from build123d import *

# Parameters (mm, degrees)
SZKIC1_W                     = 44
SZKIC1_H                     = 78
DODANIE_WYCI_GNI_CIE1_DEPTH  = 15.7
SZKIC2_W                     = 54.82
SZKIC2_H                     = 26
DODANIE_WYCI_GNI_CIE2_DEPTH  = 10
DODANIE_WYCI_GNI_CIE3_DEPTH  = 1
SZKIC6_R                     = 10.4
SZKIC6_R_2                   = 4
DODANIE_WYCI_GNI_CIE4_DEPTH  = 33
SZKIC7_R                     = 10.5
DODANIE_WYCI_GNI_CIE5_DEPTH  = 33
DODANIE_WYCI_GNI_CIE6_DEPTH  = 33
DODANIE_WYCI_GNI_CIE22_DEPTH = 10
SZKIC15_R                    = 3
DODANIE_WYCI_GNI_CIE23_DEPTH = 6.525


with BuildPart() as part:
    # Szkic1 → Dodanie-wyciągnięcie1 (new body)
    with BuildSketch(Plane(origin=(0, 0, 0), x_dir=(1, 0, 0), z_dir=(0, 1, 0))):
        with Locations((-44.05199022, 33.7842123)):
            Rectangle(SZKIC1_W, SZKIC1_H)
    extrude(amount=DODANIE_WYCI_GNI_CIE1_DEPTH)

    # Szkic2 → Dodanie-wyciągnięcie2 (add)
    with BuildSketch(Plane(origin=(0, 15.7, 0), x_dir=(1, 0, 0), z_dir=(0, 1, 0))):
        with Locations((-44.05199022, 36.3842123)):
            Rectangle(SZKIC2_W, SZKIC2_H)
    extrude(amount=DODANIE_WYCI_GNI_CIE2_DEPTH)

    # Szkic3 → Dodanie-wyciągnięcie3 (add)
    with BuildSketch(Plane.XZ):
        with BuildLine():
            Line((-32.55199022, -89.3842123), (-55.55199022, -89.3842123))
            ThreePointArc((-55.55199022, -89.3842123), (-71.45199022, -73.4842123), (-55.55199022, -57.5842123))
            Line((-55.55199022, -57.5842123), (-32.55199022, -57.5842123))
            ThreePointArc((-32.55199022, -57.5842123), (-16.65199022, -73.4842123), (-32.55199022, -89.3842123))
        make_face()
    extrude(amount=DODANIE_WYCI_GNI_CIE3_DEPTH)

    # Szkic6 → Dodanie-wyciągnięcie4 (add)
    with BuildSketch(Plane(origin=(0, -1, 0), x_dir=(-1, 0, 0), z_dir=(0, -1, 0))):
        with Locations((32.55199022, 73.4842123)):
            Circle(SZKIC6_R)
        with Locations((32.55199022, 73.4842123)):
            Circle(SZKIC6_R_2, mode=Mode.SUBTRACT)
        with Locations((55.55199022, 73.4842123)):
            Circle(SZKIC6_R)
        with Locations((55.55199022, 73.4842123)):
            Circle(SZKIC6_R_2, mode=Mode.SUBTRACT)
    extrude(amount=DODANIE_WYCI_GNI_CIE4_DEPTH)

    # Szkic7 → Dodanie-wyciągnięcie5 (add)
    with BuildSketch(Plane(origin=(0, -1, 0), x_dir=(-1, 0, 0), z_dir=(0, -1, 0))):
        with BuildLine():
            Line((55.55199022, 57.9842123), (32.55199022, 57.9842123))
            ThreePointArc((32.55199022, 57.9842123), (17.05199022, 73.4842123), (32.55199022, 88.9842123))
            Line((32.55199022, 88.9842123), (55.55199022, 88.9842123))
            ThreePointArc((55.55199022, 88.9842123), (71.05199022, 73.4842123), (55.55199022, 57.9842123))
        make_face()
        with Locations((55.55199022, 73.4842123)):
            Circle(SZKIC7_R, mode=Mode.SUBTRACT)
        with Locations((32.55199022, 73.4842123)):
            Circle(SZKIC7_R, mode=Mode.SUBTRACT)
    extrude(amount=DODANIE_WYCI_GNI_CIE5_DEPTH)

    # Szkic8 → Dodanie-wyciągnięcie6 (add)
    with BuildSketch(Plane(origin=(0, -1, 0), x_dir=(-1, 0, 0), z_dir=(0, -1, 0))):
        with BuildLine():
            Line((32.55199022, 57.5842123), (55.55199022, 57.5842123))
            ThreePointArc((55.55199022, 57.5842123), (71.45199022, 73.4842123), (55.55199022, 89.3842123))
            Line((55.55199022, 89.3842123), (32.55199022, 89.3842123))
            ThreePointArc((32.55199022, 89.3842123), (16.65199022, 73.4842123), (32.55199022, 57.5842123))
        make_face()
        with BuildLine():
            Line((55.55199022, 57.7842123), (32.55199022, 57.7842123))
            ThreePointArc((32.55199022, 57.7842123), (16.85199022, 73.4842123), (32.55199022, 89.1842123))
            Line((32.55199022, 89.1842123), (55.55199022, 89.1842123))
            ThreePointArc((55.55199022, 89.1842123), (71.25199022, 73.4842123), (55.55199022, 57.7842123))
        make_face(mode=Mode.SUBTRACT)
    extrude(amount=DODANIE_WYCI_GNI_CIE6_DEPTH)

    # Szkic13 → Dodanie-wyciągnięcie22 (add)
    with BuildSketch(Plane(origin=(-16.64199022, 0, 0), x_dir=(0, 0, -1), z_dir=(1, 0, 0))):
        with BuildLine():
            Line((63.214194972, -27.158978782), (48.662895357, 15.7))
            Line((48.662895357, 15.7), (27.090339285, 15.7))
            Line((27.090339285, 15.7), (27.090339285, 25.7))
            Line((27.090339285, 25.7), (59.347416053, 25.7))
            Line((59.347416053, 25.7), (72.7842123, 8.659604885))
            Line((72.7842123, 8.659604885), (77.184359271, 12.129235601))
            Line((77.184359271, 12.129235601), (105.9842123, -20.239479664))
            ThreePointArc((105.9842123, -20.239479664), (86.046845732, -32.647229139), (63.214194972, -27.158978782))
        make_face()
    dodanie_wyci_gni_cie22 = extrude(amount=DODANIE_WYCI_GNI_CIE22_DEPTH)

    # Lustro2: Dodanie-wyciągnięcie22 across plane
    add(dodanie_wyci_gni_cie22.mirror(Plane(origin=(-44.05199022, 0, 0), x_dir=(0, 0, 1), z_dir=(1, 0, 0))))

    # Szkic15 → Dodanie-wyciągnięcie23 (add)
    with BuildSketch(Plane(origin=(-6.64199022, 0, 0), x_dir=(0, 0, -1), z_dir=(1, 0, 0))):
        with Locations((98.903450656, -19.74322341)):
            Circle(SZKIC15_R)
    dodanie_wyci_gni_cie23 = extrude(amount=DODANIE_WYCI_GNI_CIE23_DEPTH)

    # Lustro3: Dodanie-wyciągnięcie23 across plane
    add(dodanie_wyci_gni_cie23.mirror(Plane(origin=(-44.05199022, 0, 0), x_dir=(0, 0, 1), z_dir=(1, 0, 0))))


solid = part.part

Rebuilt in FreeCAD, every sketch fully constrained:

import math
import FreeCAD as App
import Part
import Sketcher

V = App.Vector
Q = App.Units.Quantity


def add_polygon(sketch, points):
    """Adds a closed chain of lines whose ends are joined by coincident constraints."""
    first, n = sketch.GeometryCount, len(points)
    for a, b in zip(points, points[1:] + points[:1]):
        sketch.addGeometry(Part.LineSegment(App.Vector(*a, 0), App.Vector(*b, 0)), False)
    for i in range(n):
        sketch.addConstraint(Sketcher.Constraint("Coincident", first + i, 2, first + (i + 1) % n, 1))

doc = App.newDocument("Part")
body = doc.addObject("PartDesign::Body", "Body")

# Sketch on XZ plane
sketch1 = doc.addObject("Sketcher::SketchObject", "Sketch")
body.addObject(sketch1)
sketch1.AttachmentSupport = (doc.XZ_Plane, [""])
sketch1.MapMode = "FlatFace"
add_polygon(sketch1, [(-66.05199, -72.784212), (-66.05199, 5.215788), (-22.05199, 5.215788), (-22.05199, -72.784212)])  # lines 0-3
sketch1.addConstraint([
    Sketcher.Constraint("Vertical", 0),
    Sketcher.Constraint("Horizontal", 1),
    Sketcher.Constraint("Vertical", 2),
    Sketcher.Constraint("Horizontal", 3),
    Sketcher.Constraint("DistanceX", 1, 1, 1, 2, Q("44 mm")),
    Sketcher.Constraint("DistanceY", 0, 1, 0, 2, Q("78 mm")),
    Sketcher.Constraint("DistanceX", 0, 2, -1, 1, Q("66.05199 mm")),
    Sketcher.Constraint("DistanceY", -1, 1, 0, 2, Q("5.215788 mm")),
])
pad1 = doc.addObject("PartDesign::Pad", "Pad")
body.addObject(pad1)
pad1.Profile = sketch1
pad1.Length = 15.7
pad1.Reversed = True

# Sketch on XZ plane
sketch2 = doc.addObject("Sketcher::SketchObject", "Sketch001")
body.addObject(sketch2)
sketch2.AttachmentSupport = (doc.XZ_Plane, [""])
sketch2.MapMode = "FlatFace"
sketch2.AttachmentOffset = App.Placement(V(0, 0, -15.7), App.Rotation())
add_polygon(sketch2, [(-71.46199, -49.384212), (-71.46199, -23.384212), (-16.64199, -23.384212), (-16.64199, -49.384212)])  # lines 0-3
sketch2.addConstraint([
    Sketcher.Constraint("Vertical", 0),
    Sketcher.Constraint("Horizontal", 1),
    Sketcher.Constraint("Vertical", 2),
    Sketcher.Constraint("Horizontal", 3),
    Sketcher.Constraint("DistanceY", 0, 1, 0, 2, Q("26 mm")),
    Sketcher.Constraint("DistanceX", 1, 1, 1, 2, Q("54.82 mm")),
    Sketcher.Constraint("DistanceX", 0, 2, -1, 1, Q("71.46199 mm")),
    Sketcher.Constraint("DistanceY", 0, 2, -1, 1, Q("23.384212 mm")),
])
pad2 = doc.addObject("PartDesign::Pad", "Pad001")
body.addObject(pad2)
pad2.Profile = sketch2
pad2.Length = 10
pad2.Reversed = True

# Sketch on XZ plane
sketch3 = doc.addObject("Sketcher::SketchObject", "Sketch002")
body.addObject(sketch3)
sketch3.AttachmentSupport = (doc.XZ_Plane, [""])
sketch3.MapMode = "FlatFace"
sketch3.addGeometry([
    Part.LineSegment(V(-55.55199, -89.384212, 0), V(-32.55199, -89.384212, 0)),
    Part.ArcOfCircle(Part.Circle(V(-32.55199, -73.484212, 0), V(0, 0, 1), 15.9), math.radians(-90), math.radians(90)),
    Part.LineSegment(V(-32.55199, -57.584212, 0), V(-55.55199, -57.584212, 0)),
    Part.ArcOfCircle(Part.Circle(V(-55.55199, -73.484212, 0), V(0, 0, 1), 15.9), math.radians(90), math.radians(270)),
], False)
sketch3.addConstraint([
    Sketcher.Constraint("Tangent", 0, 2, 1, 1),
    Sketcher.Constraint("Tangent", 1, 2, 2, 1),
    Sketcher.Constraint("Tangent", 2, 2, 3, 1),
    Sketcher.Constraint("Tangent", 3, 2, 0, 1),
    Sketcher.Constraint("Horizontal", 0),
    Sketcher.Constraint("Horizontal", 2),
    Sketcher.Constraint("Radius", 1, Q("15.9 mm")),
    Sketcher.Constraint("DistanceX", 0, 1, 0, 2, Q("23 mm")),
    Sketcher.Constraint("DistanceX", 1, 3, -1, 1, Q("32.55199 mm")),
    Sketcher.Constraint("DistanceY", 1, 3, -1, 1, Q("73.484212 mm")),
])
pad3 = doc.addObject("PartDesign::Pad", "Pad002")
body.addObject(pad3)
pad3.Profile = sketch3
pad3.Length = 1

# Sketch on XZ plane
sketch4 = doc.addObject("Sketcher::SketchObject", "Sketch003")
body.addObject(sketch4)
sketch4.AttachmentSupport = (doc.XZ_Plane, [""])
sketch4.MapMode = "FlatFace"
sketch4.AttachmentOffset = App.Placement(V(0, 0, 1), App.Rotation())
sketch4.addGeometry([
    Part.Circle(V(-32.55199, -73.484212, 0), V(0, 0, 1), 10.4),
    Part.Circle(V(-32.55199, -73.484212, 0), V(0, 0, 1), 4),
    Part.Circle(V(-55.55199, -73.484212, 0), V(0, 0, 1), 10.4),
    Part.Circle(V(-55.55199, -73.484212, 0), V(0, 0, 1), 4),
], False)
sketch4.addConstraint([
    Sketcher.Constraint("Coincident", 1, 3, 0, 3),
    Sketcher.Constraint("Coincident", 3, 3, 2, 3),
    Sketcher.Constraint("Equal", 0, 2),
    Sketcher.Constraint("Equal", 1, 3),
    Sketcher.Constraint("Horizontal", 1, 3, 2, 3),
    Sketcher.Constraint("Diameter", 1, Q("8 mm")),
    Sketcher.Constraint("Diameter", 0, Q("20.8 mm")),
    Sketcher.Constraint("DistanceX", 2, 3, 0, 3, Q("23 mm")),
    Sketcher.Constraint("DistanceX", 0, 3, -1, 1, Q("32.55199 mm")),
    Sketcher.Constraint("DistanceY", 0, 3, -1, 1, Q("73.484212 mm")),
])
pad4 = doc.addObject("PartDesign::Pad", "Pad003")
body.addObject(pad4)
pad4.Profile = sketch4
pad4.Length = 33

# Sketch on XZ plane
sketch5 = doc.addObject("Sketcher::SketchObject", "Sketch004")
body.addObject(sketch5)
sketch5.AttachmentSupport = (doc.XZ_Plane, [""])
sketch5.MapMode = "FlatFace"
sketch5.AttachmentOffset = App.Placement(V(0, 0, 1), App.Rotation())
sketch5.addGeometry([
    Part.LineSegment(V(-32.55199, -57.984212, 0), V(-55.55199, -57.984212, 0)),  # 0
    Part.ArcOfCircle(Part.Circle(V(-55.55199, -73.484212, 0), V(0, 0, 1), 15.5), math.radians(90), math.radians(270)),  # 1
    Part.LineSegment(V(-55.55199, -88.984212, 0), V(-32.55199, -88.984212, 0)),  # 2
    Part.ArcOfCircle(Part.Circle(V(-32.55199, -73.484212, 0), V(0, 0, 1), 15.5), math.radians(-90), math.radians(90)),  # 3
    Part.Circle(V(-55.55199, -73.484212, 0), V(0, 0, 1), 10.5),  # 4
    Part.Circle(V(-32.55199, -73.484212, 0), V(0, 0, 1), 10.5),  # 5
], False)
sketch5.addConstraint([
    Sketcher.Constraint("Tangent", 0, 2, 1, 1),
    Sketcher.Constraint("Tangent", 1, 2, 2, 1),
    Sketcher.Constraint("Tangent", 2, 2, 3, 1),
    Sketcher.Constraint("Tangent", 3, 2, 0, 1),
    Sketcher.Constraint("Horizontal", 0),
    Sketcher.Constraint("Horizontal", 2),
    Sketcher.Constraint("Coincident", 4, 3, 1, 3),
    Sketcher.Constraint("Coincident", 5, 3, 3, 3),
    Sketcher.Constraint("Equal", 4, 5),
    Sketcher.Constraint("Diameter", 4, Q("21 mm")),
    Sketcher.Constraint("Radius", 1, Q("15.5 mm")),
    Sketcher.Constraint("DistanceX", 0, 2, 0, 1, Q("23 mm")),
    Sketcher.Constraint("DistanceX", 1, 3, -1, 1, Q("55.55199 mm")),
    Sketcher.Constraint("DistanceY", 1, 3, -1, 1, Q("73.484212 mm")),
])
pad5 = doc.addObject("PartDesign::Pad", "Pad004")
body.addObject(pad5)
pad5.Profile = sketch5
pad5.Length = 33

# Sketch on XZ plane
sketch6 = doc.addObject("Sketcher::SketchObject", "Sketch005")
body.addObject(sketch6)
sketch6.AttachmentSupport = (doc.XZ_Plane, [""])
sketch6.MapMode = "FlatFace"
sketch6.AttachmentOffset = App.Placement(V(0, 0, 1), App.Rotation())
sketch6.addGeometry([
    Part.LineSegment(V(-32.55199, -57.584212, 0), V(-55.55199, -57.584212, 0)),  # 0
    Part.ArcOfCircle(Part.Circle(V(-55.55199, -73.484212, 0), V(0, 0, 1), 15.9), math.radians(90), math.radians(270)),  # 1
    Part.LineSegment(V(-55.55199, -89.384212, 0), V(-32.55199, -89.384212, 0)),  # 2
    Part.ArcOfCircle(Part.Circle(V(-32.55199, -73.484212, 0), V(0, 0, 1), 15.9), math.radians(-90), math.radians(90)),  # 3
    Part.ArcOfCircle(Part.Circle(V(-55.55199, -73.484212, 0), V(0, 0, 1), 15.7), math.radians(90), math.radians(270)),  # 4
    Part.LineSegment(V(-55.55199, -57.784212, 0), V(-32.55199, -57.784212, 0)),  # 5
    Part.ArcOfCircle(Part.Circle(V(-32.55199, -73.484212, 0), V(0, 0, 1), 15.7), math.radians(-90), math.radians(90)),  # 6
    Part.LineSegment(V(-32.55199, -89.184212, 0), V(-55.55199, -89.184212, 0)),  # 7
], False)
sketch6.addConstraint([
    Sketcher.Constraint("Tangent", 0, 2, 1, 1),
    Sketcher.Constraint("Tangent", 1, 2, 2, 1),
    Sketcher.Constraint("Tangent", 2, 2, 3, 1),
    Sketcher.Constraint("Tangent", 3, 2, 0, 1),
    Sketcher.Constraint("Tangent", 4, 1, 5, 1),
    Sketcher.Constraint("Tangent", 5, 2, 6, 2),
    Sketcher.Constraint("Tangent", 6, 1, 7, 1),
    Sketcher.Constraint("Tangent", 7, 2, 4, 2),
    Sketcher.Constraint("Horizontal", 0),
    Sketcher.Constraint("Horizontal", 2),
    Sketcher.Constraint("Horizontal", 5),
    Sketcher.Constraint("Horizontal", 7),
    Sketcher.Constraint("Coincident", 4, 3, 1, 3),
    Sketcher.Constraint("Vertical", 6, 3, 2, 2),
    Sketcher.Constraint("Radius", 1, Q("15.9 mm")),
    Sketcher.Constraint("Radius", 4, Q("15.7 mm")),
    Sketcher.Constraint("DistanceX", 0, 2, 0, 1, Q("23 mm")),
    Sketcher.Constraint("DistanceX", 1, 3, -1, 1, Q("55.55199 mm")),
    Sketcher.Constraint("DistanceY", 1, 3, -1, 1, Q("73.484212 mm")),
])
pad6 = doc.addObject("PartDesign::Pad", "Pad005")
body.addObject(pad6)
pad6.Profile = sketch6
pad6.Length = 33

# Sketch on YZ plane
sketch7 = doc.addObject("Sketcher::SketchObject", "Sketch006")
body.addObject(sketch7)
sketch7.AttachmentSupport = (doc.YZ_Plane, [""])
sketch7.MapMode = "FlatFace"
sketch7.AttachmentOffset = App.Placement(V(0, 0, -16.64199), App.Rotation())
sketch7.addGeometry([
    Part.LineSegment(V(15.7, -48.662895, 0), V(-27.158979, -63.214195, 0)),  # 0
    Part.ArcOfCircle(Part.Circle(V(-2.618994, -81.188761, 0), V(0, 0, 1), 30.418677), math.radians(143.778702), math.radians(234.601111)),  # 1
    Part.LineSegment(V(-20.23948, -105.984212, 0), V(12.129236, -77.184359, 0)),  # 2
    Part.LineSegment(V(12.129236, -77.184359, 0), V(8.659605, -72.784212, 0)),  # 3
    Part.LineSegment(V(8.659605, -72.784212, 0), V(25.7, -59.347416, 0)),  # 4
    Part.LineSegment(V(25.7, -59.347416, 0), V(25.7, -27.090339, 0)),  # 5
    Part.LineSegment(V(25.7, -27.090339, 0), V(15.7, -27.090339, 0)),  # 6
    Part.LineSegment(V(15.7, -27.090339, 0), V(15.7, -48.662895, 0)),  # 7
], False)
sketch7.addConstraint([
    Sketcher.Constraint("Coincident", 0, 2, 1, 1),
    Sketcher.Constraint("Coincident", 1, 2, 2, 1),
    Sketcher.Constraint("Coincident", 2, 2, 3, 1),
    Sketcher.Constraint("Coincident", 3, 2, 4, 1),
    Sketcher.Constraint("Coincident", 4, 2, 5, 1),
    Sketcher.Constraint("Coincident", 5, 2, 6, 1),
    Sketcher.Constraint("Coincident", 6, 2, 7, 1),
    Sketcher.Constraint("Coincident", 7, 2, 0, 1),
    Sketcher.Constraint("Vertical", 5),
    Sketcher.Constraint("Horizontal", 6),
    Sketcher.Constraint("Vertical", 7),
    Sketcher.Constraint("Perpendicular", 3, 4),
    Sketcher.Constraint("DistanceX", 6, 2, 6, 1, Q("10 mm")),
    Sketcher.Constraint("DistanceX", -1, 1, 4, 2, Q("25.7 mm")),
    Sketcher.Constraint("DistanceY", 1, 2, 3, 2, Q("33.2 mm")),
    Sketcher.Constraint("Radius", 1, Q("30.418677 mm")),
    Sketcher.Constraint("DistanceX", 0, 2, 1, 2, Q("6.919499 mm")),
    Sketcher.Constraint("DistanceX", 1, 3, 3, 2, Q("11.278598 mm")),
    Sketcher.Constraint("Distance", 0, Q("45.26182 mm")),
    Sketcher.Constraint("Distance", 4, Q("21.70075 mm")),
    Sketcher.Constraint("DistanceY", 5, 1, 5, 2, Q("32.257077 mm")),
    Sketcher.Constraint("DistanceY", 7, 2, 7, 1, Q("21.572556 mm")),
    Sketcher.Constraint("DistanceY", 1, 3, -1, 1, Q("81.188761 mm")),
    Sketcher.Constraint("DistanceX", 0, 2, -1, 1, Q("27.158979 mm")),
    Sketcher.Constraint("DistanceY", 2, 2, -1, 1, Q("77.184359 mm")),
])
pad7 = doc.addObject("PartDesign::Pad", "Pad006")
body.addObject(pad7)
pad7.Profile = sketch7
pad7.Length = 10
doc.recompute()

datumplane = doc.addObject("PartDesign::Plane", "DatumPlane")
body.addObject(datumplane)
datumplane.AttachmentSupport = (doc.YZ_Plane, [""])
datumplane.MapMode = "FlatFace"
datumplane.AttachmentOffset = App.Placement(V(0, 0, -44.05199), App.Rotation())
mirrored = doc.addObject("PartDesign::Mirrored", "Mirrored")
body.addObject(mirrored)
mirrored.Originals = [pad7]
mirrored.MirrorPlane = (datumplane, [""])
body.Tip = mirrored

# Sketch on YZ plane
sketch8 = doc.addObject("Sketcher::SketchObject", "Sketch007")
body.addObject(sketch8)
sketch8.AttachmentSupport = (doc.YZ_Plane, [""])
sketch8.MapMode = "FlatFace"
sketch8.AttachmentOffset = App.Placement(V(0, 0, -6.64199), App.Rotation())
sketch8.addGeometry(Part.Circle(V(-19.743223, -98.903451, 0), V(0, 0, 1), 3), False)
sketch8.addConstraint([
    Sketcher.Constraint("Diameter", 0, Q("6 mm")),
    Sketcher.Constraint("DistanceY", 0, 3, -1, 1, Q("98.903451 mm")),
    Sketcher.Constraint("DistanceX", 0, 3, -1, 1, Q("19.743223 mm")),
])
pad8 = doc.addObject("PartDesign::Pad", "Pad007")
body.addObject(pad8)
pad8.Profile = sketch8
pad8.Length = 6.525
doc.recompute()

datumplane2 = doc.addObject("PartDesign::Plane", "DatumPlane001")
body.addObject(datumplane2)
datumplane2.AttachmentSupport = (doc.YZ_Plane, [""])
datumplane2.MapMode = "FlatFace"
datumplane2.AttachmentOffset = App.Placement(V(0, 0, -44.05199), App.Rotation())
mirrored2 = doc.addObject("PartDesign::Mirrored", "Mirrored001")
body.addObject(mirrored2)
mirrored2.Originals = [pad8]
mirrored2.MirrorPlane = (datumplane2, [""])
body.Tip = mirrored2

doc.recompute()
